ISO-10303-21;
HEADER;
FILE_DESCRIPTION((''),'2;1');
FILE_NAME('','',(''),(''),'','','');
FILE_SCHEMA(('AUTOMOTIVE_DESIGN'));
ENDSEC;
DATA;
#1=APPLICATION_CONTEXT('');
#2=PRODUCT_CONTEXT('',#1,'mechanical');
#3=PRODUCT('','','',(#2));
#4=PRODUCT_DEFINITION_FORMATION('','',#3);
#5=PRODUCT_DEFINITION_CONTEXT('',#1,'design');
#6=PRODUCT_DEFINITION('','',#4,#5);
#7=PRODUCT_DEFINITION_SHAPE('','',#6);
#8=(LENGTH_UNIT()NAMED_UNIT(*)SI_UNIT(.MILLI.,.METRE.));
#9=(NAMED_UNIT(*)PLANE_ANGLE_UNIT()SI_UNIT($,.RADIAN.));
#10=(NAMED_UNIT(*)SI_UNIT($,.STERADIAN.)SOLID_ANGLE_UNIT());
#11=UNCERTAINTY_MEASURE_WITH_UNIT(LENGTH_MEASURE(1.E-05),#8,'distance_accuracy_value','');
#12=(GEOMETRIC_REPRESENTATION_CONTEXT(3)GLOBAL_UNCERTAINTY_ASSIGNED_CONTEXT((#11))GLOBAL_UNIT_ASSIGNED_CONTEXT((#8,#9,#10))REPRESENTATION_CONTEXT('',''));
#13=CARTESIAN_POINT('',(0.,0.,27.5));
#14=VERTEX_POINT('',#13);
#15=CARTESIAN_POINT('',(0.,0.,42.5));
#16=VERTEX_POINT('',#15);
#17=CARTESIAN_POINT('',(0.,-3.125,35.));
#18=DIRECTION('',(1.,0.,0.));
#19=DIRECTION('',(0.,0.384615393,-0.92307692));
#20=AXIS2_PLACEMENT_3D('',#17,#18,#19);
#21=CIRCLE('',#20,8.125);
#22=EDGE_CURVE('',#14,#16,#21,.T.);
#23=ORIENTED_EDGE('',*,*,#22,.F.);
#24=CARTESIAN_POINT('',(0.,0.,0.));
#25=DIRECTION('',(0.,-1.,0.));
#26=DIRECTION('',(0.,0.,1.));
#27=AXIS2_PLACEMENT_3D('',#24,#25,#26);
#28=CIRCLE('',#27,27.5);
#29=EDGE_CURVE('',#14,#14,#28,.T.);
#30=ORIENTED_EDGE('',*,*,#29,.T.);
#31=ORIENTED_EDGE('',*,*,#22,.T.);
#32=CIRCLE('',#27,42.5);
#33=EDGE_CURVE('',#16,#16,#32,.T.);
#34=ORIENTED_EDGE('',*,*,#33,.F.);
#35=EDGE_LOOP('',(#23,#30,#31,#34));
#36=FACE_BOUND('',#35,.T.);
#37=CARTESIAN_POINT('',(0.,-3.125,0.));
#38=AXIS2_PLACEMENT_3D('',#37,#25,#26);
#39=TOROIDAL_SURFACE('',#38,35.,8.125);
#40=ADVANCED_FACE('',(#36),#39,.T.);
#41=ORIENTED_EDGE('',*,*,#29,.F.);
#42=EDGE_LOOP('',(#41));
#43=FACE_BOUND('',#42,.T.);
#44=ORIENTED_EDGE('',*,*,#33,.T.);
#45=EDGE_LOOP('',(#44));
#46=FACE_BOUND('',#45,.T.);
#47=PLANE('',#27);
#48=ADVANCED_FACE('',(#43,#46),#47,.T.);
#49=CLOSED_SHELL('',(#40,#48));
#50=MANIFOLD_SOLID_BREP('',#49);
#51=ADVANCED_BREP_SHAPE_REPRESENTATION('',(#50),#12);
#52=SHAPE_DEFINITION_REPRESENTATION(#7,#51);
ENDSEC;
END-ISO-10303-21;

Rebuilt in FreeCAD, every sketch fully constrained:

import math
import FreeCAD as App
import Part
import Sketcher

V = App.Vector
Q = App.Units.Quantity

doc = App.newDocument("Part")
params = doc.addObject("Spreadsheet::Sheet", "Params")
for row, (alias, value) in enumerate([
    ("sketch1_height", "15 mm"),
    ("revolution_angle", "360 deg"),
], start=1):
    params.set(f"A{row}", alias)
    params.set(f"B{row}", "=" + value)
    params.setAlias(f"B{row}", alias)

body = doc.addObject("PartDesign::Body", "Body")

# Sketch on YZ plane
sketch1 = body.newObject("Sketcher::SketchObject", "Sketch")
sketch1.AttachmentSupport = (doc.getObject("YZ_Plane"), [""])
sketch1.MapMode = "FlatFace"
sketch1.addGeometry([
    Part.LineSegment(V(0, 42.5, 0), V(0, 27.5, 0)),
    Part.ArcOfCircle(Part.Circle(V(-3.125, 35, 0), V(0, 0, 1), 8.125), math.radians(-67.380135), math.radians(67.380135)),
], False)
sketch1.addConstraint([
    Sketcher.Constraint("Coincident", 0, 1, 1, 2),
    Sketcher.Constraint("Coincident", 1, 1, 0, 2),
    Sketcher.Constraint("Vertical", 0),
    Sketcher.Constraint("PointOnObject", 0, 1, -2),
    Sketcher.Constraint("DistanceY", 0, 2, 0, 1, Q("15 mm")),
    Sketcher.Constraint("DistanceY", -1, 1, 1, 3, Q("35 mm")),
    Sketcher.Constraint("Radius", 1, Q("8.125 mm")),
])
sketch1.setExpression("Constraints[4]", "Params.sketch1_height")
revolution = body.newObject("PartDesign::Revolution", "Revolution")
revolution.Profile = sketch1
revolution.ReferenceAxis = (sketch1, ["H_Axis"])
revolution.setExpression("Angle", "Params.revolution_angle")

doc.recompute()
